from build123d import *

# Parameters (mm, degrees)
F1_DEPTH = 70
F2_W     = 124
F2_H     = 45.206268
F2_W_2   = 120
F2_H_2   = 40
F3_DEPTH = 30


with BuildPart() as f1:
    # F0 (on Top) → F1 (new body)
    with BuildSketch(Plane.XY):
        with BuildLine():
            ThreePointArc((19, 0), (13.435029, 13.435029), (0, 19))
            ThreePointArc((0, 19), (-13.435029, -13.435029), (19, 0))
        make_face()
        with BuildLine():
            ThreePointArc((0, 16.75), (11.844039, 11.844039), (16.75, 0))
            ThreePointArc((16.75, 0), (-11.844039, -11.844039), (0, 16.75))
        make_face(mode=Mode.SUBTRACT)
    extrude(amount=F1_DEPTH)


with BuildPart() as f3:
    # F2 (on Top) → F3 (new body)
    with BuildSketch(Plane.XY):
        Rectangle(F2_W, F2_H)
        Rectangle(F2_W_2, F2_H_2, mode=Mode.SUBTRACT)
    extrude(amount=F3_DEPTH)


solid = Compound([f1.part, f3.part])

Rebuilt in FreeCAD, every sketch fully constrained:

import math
import FreeCAD as App
import Part
import Sketcher

doc = App.newDocument("Part")
body = doc.addObject("PartDesign::Body", "Body")

sketch1 = doc.addObject("Sketcher::SketchObject", "Sketch")
body.addObject(sketch1)
sketch1.AttachmentSupport = (doc.XY_Plane, [""])
sketch1.MapMode = "FlatFace"
sketch1.addGeometry([
    Part.ArcOfCircle(Part.Circle(App.Vector(0, 0, 0), App.Vector(0, 0, 1), 19), math.radians(0), math.radians(90)),
    Part.ArcOfCircle(Part.Circle(App.Vector(0, 0, 0), App.Vector(0, 0, 1), 19), math.radians(90), math.radians(360)),
    Part.ArcOfCircle(Part.Circle(App.Vector(0, 0, 0), App.Vector(0, 0, 1), 17), math.radians(90), math.radians(360)),
    Part.ArcOfCircle(Part.Circle(App.Vector(0, 0, 0), App.Vector(0, 0, 1), 17), math.radians(0), math.radians(90)),
], False)
sketch1.addConstraint([
    Sketcher.Constraint("Tangent", 0, 1, 1, 2),
    Sketcher.Constraint("Coincident", 1, 1, 0, 2),
    Sketcher.Constraint("Tangent", 2, 1, 3, 2),
    Sketcher.Constraint("Coincident", 3, 1, 2, 2),
    Sketcher.Constraint("Coincident", 0, 3, -1, 1),
    Sketcher.Constraint("Coincident", 2, 3, -1, 1),
    Sketcher.Constraint("PointOnObject", 0, 1, -1),
    Sketcher.Constraint("PointOnObject", 1, 1, -2),
    Sketcher.Constraint("PointOnObject", 2, 1, -2),
    Sketcher.Constraint("PointOnObject", 3, 1, -1),
    Sketcher.Constraint("Radius", 0, 18.999999),
    Sketcher.Constraint("Radius", 2, 16.75),
])
pad1 = doc.addObject("PartDesign::Pad", "Pad")
body.addObject(pad1)
pad1.Profile = sketch1
pad1.Length = 70
body2 = doc.addObject("PartDesign::Body", "Body001")

sketch2 = doc.addObject("Sketcher::SketchObject", "Sketch001")
body2.addObject(sketch2)
sketch2.AttachmentSupport = (doc.getObject("XY_Plane001"), [""])
sketch2.MapMode = "FlatFace"
sketch2.addGeometry([
    Part.LineSegment(App.Vector(-62, 23, 0), App.Vector(-62, -23, 0)),
    Part.LineSegment(App.Vector(-62, -23, 0), App.Vector(62, -23, 0)),
    Part.LineSegment(App.Vector(62, -23, 0), App.Vector(62, 23, 0)),
    Part.LineSegment(App.Vector(62, 23, 0), App.Vector(-62, 23, 0)),
    Part.LineSegment(App.Vector(60, -20, 0), App.Vector(-60, -20, 0)),
    Part.LineSegment(App.Vector(-60, -20, 0), App.Vector(-60, 20, 0)),
    Part.LineSegment(App.Vector(-60, 20, 0), App.Vector(60, 20, 0)),
    Part.LineSegment(App.Vector(60, 20, 0), App.Vector(60, -20, 0)),
], False)
sketch2.addConstraint([
    Sketcher.Constraint("Coincident", 0, 2, 1, 1),
    Sketcher.Constraint("Coincident", 1, 2, 2, 1),
    Sketcher.Constraint("Coincident", 2, 2, 3, 1),
    Sketcher.Constraint("Coincident", 3, 2, 0, 1),
    Sketcher.Constraint("Coincident", 4, 2, 5, 1),
    Sketcher.Constraint("Coincident", 5, 2, 6, 1),
    Sketcher.Constraint("Coincident", 6, 2, 7, 1),
    Sketcher.Constraint("Coincident", 7, 2, 4, 1),
    Sketcher.Constraint("Vertical", 0),
    Sketcher.Constraint("Horizontal", 1),
    Sketcher.Constraint("Vertical", 2),
    Sketcher.Constraint("Horizontal", 3),
    Sketcher.Constraint("Horizontal", 4),
    Sketcher.Constraint("Vertical", 5),
    Sketcher.Constraint("Horizontal", 6),
    Sketcher.Constraint("Vertical", 7),
    Sketcher.Constraint("Symmetric", 0, 2, 2, 2, -1, 1),
    Sketcher.Constraint("Symmetric", 4, 2, 6, 2, -1, 1),
    Sketcher.Constraint("DistanceX", 1, 1, 1, 2, 124.0),
    Sketcher.Constraint("DistanceX", 4, 2, 4, 1, 120.0),
    Sketcher.Constraint("DistanceY", 5, 1, 5, 2, 40.0),
    Sketcher.Constraint("DistanceY", 0, 2, 0, 1, 45.206268),
])
pad2 = doc.addObject("PartDesign::Pad", "Pad001")
body2.addObject(pad2)
pad2.Profile = sketch2
pad2.Length = 30

doc.recompute()
